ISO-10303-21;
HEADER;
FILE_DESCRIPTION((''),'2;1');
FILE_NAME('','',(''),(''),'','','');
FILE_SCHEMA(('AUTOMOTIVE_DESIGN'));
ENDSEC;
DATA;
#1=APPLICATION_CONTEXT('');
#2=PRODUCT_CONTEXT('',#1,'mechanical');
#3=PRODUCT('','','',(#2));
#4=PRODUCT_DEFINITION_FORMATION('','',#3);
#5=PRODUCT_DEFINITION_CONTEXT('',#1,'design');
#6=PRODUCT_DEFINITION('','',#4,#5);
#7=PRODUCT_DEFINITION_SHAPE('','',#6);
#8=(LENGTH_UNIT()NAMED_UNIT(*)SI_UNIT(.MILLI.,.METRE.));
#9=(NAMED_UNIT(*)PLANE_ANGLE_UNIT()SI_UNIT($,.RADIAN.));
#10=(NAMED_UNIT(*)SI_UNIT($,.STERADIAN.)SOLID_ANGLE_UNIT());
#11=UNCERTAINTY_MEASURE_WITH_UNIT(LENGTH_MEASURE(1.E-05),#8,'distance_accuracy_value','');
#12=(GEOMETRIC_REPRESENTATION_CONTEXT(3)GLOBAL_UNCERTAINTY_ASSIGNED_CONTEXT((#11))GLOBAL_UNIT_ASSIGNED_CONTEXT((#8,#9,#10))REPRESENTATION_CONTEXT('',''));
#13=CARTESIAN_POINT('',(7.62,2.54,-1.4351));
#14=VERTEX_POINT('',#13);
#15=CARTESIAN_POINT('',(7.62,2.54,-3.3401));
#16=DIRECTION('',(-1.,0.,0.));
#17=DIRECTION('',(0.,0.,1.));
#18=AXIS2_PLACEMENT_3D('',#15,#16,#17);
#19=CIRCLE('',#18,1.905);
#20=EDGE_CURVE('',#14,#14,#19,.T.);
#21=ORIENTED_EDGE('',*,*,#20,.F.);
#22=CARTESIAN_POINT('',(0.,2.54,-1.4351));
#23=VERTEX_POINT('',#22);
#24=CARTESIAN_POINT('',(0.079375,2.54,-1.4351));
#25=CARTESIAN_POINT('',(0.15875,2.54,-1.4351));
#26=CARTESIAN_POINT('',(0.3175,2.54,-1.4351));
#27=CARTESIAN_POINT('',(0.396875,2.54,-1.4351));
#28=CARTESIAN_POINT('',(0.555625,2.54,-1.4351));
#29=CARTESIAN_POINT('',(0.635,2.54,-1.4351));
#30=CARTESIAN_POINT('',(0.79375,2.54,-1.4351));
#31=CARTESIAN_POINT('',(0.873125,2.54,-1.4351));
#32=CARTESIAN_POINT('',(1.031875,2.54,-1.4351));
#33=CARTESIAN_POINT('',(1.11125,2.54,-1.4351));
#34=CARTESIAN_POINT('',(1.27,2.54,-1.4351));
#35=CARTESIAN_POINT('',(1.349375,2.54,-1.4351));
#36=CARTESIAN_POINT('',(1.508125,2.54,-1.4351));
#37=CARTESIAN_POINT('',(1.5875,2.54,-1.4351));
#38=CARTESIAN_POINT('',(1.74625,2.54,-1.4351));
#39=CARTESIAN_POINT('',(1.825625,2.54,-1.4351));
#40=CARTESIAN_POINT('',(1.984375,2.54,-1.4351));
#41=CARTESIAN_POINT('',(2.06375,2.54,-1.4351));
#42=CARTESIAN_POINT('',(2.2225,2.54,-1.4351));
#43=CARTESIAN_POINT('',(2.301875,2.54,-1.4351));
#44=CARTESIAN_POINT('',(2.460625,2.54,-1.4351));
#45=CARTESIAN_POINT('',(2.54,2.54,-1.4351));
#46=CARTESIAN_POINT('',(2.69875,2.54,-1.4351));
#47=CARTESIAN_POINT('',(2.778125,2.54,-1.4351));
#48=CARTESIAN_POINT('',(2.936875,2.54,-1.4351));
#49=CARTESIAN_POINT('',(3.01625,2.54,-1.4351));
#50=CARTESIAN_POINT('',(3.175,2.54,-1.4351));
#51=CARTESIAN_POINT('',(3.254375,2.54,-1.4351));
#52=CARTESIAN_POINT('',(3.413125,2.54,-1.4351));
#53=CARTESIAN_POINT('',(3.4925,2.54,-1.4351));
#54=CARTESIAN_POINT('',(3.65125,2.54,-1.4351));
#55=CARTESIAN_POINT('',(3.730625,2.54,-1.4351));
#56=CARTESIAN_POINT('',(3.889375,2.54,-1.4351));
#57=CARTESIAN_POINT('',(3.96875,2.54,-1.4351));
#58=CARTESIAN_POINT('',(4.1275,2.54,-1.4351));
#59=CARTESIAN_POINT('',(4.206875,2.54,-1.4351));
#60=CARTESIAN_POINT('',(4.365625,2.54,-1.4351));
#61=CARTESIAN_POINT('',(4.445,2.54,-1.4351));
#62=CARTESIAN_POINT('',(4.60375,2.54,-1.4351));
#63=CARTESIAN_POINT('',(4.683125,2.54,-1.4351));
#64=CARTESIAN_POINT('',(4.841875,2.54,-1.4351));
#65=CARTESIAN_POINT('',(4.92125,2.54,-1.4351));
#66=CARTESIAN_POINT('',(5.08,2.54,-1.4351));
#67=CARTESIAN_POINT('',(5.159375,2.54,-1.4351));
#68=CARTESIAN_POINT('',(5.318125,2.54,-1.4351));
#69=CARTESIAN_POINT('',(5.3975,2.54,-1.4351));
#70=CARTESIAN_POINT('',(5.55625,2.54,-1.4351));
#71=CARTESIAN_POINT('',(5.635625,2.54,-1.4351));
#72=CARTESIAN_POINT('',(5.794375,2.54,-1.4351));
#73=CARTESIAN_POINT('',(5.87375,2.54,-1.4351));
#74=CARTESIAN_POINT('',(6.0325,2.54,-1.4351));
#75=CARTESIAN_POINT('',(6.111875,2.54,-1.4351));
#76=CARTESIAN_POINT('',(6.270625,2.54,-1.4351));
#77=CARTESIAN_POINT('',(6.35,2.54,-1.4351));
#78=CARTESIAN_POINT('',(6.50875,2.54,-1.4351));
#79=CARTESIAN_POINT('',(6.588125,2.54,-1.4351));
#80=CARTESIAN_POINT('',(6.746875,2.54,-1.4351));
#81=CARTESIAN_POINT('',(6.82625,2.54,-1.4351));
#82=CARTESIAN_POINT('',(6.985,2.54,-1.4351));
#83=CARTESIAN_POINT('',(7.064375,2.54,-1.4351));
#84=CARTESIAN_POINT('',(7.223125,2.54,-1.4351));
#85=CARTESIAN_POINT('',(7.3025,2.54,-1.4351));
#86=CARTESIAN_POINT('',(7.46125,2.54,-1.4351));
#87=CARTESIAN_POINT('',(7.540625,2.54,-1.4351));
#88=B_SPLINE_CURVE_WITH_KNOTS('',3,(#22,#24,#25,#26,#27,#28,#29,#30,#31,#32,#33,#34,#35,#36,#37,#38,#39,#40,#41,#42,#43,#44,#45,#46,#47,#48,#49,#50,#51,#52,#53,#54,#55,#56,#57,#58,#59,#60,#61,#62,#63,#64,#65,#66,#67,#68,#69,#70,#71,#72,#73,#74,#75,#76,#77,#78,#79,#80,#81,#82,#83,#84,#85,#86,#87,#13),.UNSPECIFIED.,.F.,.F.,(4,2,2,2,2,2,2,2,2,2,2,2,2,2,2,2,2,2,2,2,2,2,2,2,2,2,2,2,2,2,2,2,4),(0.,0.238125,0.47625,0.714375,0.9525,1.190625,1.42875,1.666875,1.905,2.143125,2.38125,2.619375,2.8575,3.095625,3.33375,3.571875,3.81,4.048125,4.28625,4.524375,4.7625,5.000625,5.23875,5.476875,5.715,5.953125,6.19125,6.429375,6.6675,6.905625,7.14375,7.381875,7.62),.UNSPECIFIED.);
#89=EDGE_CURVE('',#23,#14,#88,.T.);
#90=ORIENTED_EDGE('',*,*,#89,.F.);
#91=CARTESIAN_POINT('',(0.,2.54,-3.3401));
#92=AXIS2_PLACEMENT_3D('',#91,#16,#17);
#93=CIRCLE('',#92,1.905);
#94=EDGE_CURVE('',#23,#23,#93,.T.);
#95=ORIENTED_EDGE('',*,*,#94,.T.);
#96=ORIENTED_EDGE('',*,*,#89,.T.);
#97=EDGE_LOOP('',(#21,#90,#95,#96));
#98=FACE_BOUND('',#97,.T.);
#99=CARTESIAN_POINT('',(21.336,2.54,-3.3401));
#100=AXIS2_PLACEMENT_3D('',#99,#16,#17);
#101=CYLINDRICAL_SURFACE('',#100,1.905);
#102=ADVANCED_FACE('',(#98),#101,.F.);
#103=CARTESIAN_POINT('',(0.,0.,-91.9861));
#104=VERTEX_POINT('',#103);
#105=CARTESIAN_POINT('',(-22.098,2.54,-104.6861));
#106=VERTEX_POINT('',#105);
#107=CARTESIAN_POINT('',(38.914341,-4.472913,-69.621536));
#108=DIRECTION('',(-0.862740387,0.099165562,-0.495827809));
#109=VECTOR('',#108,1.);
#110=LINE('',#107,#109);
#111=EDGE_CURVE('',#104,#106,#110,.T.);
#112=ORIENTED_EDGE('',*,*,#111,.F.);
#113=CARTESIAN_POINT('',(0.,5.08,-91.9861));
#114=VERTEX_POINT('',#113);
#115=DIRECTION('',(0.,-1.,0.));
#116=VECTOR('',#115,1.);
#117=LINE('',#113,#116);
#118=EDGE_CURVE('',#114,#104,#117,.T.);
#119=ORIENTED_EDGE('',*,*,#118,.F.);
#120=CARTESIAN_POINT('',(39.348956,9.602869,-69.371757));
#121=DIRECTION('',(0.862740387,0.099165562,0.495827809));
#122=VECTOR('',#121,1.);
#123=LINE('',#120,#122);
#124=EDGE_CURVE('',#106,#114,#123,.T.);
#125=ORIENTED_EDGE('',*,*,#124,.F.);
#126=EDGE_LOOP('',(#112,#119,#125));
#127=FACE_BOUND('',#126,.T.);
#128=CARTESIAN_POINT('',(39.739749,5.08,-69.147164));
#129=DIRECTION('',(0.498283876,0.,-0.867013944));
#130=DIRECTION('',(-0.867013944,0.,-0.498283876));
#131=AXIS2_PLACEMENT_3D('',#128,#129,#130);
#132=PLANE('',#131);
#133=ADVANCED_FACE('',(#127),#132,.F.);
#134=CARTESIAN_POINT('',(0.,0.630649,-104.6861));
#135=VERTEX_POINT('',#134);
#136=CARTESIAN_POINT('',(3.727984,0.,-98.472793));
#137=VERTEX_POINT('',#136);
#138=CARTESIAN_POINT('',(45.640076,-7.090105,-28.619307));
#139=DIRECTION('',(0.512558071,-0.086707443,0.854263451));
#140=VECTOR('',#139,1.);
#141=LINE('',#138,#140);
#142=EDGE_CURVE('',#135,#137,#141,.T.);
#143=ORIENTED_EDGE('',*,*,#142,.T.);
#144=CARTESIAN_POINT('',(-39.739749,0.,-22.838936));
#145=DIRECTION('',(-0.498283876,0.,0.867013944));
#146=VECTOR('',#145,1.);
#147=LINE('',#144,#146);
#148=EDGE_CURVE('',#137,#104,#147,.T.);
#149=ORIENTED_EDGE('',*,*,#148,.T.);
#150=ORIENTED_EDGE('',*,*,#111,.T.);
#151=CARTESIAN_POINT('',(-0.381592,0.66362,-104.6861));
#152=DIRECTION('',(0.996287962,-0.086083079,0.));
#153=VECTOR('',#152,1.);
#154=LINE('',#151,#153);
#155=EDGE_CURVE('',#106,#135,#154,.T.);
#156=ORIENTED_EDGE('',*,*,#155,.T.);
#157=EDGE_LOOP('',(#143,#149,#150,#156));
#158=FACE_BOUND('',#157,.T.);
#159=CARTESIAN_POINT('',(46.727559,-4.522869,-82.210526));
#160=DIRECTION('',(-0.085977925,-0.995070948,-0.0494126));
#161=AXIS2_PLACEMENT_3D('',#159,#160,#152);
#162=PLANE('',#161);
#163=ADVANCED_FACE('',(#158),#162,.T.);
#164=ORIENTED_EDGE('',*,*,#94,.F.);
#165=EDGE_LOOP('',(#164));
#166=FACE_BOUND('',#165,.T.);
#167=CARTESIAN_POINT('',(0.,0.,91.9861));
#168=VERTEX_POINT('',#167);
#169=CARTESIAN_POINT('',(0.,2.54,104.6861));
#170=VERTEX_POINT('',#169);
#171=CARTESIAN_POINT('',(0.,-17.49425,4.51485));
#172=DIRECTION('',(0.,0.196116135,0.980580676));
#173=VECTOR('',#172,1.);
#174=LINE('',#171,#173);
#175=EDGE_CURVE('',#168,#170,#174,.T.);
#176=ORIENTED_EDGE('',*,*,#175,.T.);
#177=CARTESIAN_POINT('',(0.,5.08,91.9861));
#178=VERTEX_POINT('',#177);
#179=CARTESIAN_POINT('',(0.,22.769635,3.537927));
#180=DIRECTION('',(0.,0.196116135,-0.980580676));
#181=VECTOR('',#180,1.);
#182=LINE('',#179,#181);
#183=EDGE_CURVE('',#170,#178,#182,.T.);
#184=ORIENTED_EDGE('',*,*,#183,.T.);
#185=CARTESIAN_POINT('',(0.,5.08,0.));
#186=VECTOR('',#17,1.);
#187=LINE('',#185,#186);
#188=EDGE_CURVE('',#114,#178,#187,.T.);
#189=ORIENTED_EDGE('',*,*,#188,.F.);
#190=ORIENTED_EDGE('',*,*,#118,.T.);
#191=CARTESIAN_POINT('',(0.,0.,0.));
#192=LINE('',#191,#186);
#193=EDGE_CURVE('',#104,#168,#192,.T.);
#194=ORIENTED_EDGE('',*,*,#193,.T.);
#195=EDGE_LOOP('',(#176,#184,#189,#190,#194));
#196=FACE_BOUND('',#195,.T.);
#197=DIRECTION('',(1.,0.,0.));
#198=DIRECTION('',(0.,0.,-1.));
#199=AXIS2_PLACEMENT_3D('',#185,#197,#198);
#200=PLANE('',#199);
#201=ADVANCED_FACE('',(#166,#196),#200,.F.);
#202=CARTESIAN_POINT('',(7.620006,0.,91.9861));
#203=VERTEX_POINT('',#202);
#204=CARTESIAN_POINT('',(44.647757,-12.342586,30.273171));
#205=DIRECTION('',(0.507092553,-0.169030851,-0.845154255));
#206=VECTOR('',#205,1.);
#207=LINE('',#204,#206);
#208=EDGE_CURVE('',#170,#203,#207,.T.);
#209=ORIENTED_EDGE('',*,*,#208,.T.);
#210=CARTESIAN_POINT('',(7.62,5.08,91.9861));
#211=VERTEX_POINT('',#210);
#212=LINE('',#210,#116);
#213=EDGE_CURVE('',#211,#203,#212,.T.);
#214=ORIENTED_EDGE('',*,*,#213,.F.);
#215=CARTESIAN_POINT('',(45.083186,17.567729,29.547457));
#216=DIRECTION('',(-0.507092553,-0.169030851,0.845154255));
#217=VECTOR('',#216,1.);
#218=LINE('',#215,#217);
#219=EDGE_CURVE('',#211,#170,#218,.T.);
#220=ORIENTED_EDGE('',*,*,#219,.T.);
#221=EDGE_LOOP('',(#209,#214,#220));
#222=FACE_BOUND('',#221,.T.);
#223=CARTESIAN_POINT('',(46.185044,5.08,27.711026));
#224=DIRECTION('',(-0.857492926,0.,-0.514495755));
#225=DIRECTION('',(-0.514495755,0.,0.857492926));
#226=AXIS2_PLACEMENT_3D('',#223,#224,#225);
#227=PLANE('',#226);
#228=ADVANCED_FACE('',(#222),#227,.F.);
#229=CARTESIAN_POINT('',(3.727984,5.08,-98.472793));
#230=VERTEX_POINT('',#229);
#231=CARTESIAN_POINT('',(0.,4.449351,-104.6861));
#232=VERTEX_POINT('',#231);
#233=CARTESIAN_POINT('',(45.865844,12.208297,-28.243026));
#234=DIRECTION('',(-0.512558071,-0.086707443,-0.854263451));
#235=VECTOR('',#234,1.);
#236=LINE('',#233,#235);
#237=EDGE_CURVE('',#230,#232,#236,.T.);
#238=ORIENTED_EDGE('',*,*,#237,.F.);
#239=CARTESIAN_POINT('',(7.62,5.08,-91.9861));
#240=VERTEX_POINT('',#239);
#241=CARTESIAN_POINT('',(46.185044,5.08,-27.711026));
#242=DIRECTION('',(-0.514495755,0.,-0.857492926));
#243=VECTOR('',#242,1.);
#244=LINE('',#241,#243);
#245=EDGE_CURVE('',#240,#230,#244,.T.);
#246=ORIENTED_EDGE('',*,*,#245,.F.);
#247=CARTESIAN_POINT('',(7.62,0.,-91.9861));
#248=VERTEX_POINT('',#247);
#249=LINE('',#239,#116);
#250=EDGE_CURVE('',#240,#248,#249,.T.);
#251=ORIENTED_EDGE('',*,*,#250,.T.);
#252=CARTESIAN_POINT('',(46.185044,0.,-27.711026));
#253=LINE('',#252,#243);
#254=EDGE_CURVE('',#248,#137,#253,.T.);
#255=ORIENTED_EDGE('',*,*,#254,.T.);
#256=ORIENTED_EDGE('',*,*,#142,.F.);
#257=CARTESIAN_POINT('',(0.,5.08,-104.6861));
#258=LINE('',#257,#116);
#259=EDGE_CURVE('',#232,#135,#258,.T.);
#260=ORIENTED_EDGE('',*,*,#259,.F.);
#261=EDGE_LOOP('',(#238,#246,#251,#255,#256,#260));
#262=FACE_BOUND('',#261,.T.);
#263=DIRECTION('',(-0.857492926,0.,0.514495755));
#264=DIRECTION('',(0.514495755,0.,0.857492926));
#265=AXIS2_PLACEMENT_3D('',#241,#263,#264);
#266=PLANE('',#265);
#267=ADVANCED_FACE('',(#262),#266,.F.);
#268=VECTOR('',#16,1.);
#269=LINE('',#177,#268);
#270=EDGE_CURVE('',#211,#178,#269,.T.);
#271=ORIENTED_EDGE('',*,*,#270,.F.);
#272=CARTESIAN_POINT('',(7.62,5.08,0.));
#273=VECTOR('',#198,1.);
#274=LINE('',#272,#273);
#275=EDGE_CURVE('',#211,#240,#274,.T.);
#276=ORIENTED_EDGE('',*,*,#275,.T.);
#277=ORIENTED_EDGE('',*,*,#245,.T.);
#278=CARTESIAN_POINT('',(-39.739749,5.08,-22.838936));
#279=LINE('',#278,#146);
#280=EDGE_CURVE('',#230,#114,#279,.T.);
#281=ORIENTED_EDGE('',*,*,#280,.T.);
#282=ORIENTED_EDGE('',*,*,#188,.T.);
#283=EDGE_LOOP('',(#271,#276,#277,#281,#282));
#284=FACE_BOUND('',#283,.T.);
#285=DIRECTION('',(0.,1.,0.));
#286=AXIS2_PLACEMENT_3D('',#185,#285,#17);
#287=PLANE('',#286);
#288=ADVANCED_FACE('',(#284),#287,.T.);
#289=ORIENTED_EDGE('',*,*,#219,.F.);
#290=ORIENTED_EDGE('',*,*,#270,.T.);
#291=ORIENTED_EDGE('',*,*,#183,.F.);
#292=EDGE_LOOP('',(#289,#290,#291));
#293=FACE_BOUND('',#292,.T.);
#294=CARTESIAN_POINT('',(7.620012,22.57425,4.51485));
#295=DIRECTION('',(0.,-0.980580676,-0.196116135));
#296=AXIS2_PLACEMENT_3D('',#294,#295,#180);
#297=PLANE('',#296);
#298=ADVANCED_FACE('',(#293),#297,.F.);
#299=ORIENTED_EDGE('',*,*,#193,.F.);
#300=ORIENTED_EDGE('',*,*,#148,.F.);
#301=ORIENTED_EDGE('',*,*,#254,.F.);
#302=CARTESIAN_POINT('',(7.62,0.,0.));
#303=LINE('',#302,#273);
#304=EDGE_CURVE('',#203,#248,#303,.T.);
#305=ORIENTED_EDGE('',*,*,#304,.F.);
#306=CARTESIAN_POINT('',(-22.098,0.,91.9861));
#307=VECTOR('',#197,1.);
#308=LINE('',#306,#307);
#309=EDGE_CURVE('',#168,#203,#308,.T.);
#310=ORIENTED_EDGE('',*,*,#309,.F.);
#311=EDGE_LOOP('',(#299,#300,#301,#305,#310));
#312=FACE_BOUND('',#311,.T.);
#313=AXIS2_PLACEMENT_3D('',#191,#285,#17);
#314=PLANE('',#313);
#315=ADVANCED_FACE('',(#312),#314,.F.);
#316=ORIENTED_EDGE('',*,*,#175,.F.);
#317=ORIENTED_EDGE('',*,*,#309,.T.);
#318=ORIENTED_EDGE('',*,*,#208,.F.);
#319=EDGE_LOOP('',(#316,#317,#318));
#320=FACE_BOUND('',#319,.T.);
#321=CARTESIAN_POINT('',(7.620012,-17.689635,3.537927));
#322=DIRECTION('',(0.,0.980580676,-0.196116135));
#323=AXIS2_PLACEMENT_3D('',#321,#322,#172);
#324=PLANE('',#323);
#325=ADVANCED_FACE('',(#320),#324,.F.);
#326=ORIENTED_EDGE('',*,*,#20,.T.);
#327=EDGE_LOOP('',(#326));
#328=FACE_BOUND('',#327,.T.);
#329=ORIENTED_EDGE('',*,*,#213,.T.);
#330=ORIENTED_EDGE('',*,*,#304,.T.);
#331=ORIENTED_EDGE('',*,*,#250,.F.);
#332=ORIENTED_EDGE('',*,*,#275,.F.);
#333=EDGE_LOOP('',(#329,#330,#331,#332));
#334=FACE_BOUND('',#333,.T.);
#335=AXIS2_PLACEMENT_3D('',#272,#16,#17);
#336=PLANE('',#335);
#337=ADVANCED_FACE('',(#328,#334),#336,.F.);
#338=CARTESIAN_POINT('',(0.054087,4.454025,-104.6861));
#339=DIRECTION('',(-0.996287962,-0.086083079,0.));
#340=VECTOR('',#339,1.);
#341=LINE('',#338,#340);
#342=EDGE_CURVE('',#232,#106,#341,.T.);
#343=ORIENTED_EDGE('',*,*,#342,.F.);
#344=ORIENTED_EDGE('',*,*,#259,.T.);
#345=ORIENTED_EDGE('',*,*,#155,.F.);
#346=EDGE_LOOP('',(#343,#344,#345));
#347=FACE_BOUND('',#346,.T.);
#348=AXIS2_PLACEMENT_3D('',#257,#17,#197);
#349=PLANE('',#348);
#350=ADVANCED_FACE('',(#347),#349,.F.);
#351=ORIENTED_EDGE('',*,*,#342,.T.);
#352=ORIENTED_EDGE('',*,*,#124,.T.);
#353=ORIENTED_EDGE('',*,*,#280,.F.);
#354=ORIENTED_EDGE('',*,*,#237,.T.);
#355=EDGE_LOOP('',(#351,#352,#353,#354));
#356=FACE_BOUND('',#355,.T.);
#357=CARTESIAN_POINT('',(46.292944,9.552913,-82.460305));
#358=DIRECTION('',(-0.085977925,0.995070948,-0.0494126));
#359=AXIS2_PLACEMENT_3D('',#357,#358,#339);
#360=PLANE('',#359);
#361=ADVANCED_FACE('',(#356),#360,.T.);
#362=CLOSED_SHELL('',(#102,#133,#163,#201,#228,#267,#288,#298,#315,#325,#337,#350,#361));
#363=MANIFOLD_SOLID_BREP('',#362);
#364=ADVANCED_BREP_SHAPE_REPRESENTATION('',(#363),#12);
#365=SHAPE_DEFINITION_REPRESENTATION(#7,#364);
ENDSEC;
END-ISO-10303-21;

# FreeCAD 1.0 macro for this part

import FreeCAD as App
import Part
import Sketcher

V = App.Vector
Q = App.Units.Quantity

doc = App.newDocument("Part")
body = doc.addObject("PartDesign::Body", "Body")

sketch1 = doc.addObject("Sketcher::SketchObject", "Sketch")
body.addObject(sketch1)
sketch1.AttachmentSupport = (doc.XZ_Plane, [""])
sketch1.MapMode = "FlatFace"
sketch1.addGeometry([
    Part.LineSegment(V(8, 92, 0), V(8, -92, 0)),
    Part.LineSegment(V(8, -92, 0), V(0, -105, 0)),
    Part.LineSegment(V(0, -105, 0), V(-22, -105, 0)),
    Part.LineSegment(V(-22, -105, 0), V(0, -92, 0)),
    Part.LineSegment(V(0, -92, 0), V(0, 105, 0)),
    Part.LineSegment(V(0, 105, 0), V(8, 92, 0)),
], False)
sketch1.addConstraint([
    Sketcher.Constraint("Coincident", 0, 2, 1, 1),
    Sketcher.Constraint("Coincident", 1, 2, 2, 1),
    Sketcher.Constraint("Coincident", 2, 2, 3, 1),
    Sketcher.Constraint("Coincident", 3, 2, 4, 1),
    Sketcher.Constraint("Coincident", 4, 2, 5, 1),
    Sketcher.Constraint("Coincident", 5, 2, 0, 1),
    Sketcher.Constraint("Vertical", 0),
    Sketcher.Constraint("Horizontal", 2),
    Sketcher.Constraint("Vertical", 4),
    Sketcher.Constraint("Symmetric", 1, 2, 4, 2, -1, 1),
    Sketcher.Constraint("PointOnObject", 1, 2, -2),
    Sketcher.Constraint("Horizontal", 0, 2, 3, 2),
    Sketcher.Constraint("Equal", 1, 5),
    Sketcher.Constraint("DistanceX", 2, 2, 2, 1, Q("0.87 in")),
    Sketcher.Constraint("DistanceX", -1, 1, 0, 2, Q("0.3 in")),
    Sketcher.Constraint("DistanceY", 1, 2, 0, 2, Q("0.5 in")),
    Sketcher.Constraint("DistanceY", 0, 2, 0, 1, Q("7.243 in")),
])
pad1 = doc.addObject("PartDesign::Pad", "Pad")
body.addObject(pad1)
pad1.Profile = sketch1
pad1.Length = Q("0.2 in")
pad1.Reversed = True

sketch2 = doc.addObject("Sketcher::SketchObject", "Sketch001")
body.addObject(sketch2)
sketch2.AttachmentSupport = (doc.YZ_Plane, [""])
sketch2.MapMode = "FlatFace"
sketch2.AttachmentOffset = App.Placement(V(0, 0, 0.3 * 25.4), App.Rotation())
sketch2.addGeometry([
    Part.LineSegment(V(5.1, 92, 0), V(5.1, 104.7, 0)),
    Part.LineSegment(V(5.1, 104.7, 0), V(2.5, 104.7, 0)),
    Part.LineSegment(V(2.5, 104.7, 0), V(5.1, 92, 0)),
    Part.LineSegment(V(2.5, 104.7, 0), V(0, 104.7, 0)),
    Part.LineSegment(V(0, 104.7, 0), V(0, 92, 0)),
    Part.LineSegment(V(0, 92, 0), V(2.5, 104.7, 0)),
], False)
sketch2.addConstraint([
    Sketcher.Constraint("Coincident", 0, 2, 1, 1),
    Sketcher.Constraint("Coincident", 1, 2, 2, 1),
    Sketcher.Constraint("Coincident", 2, 2, 0, 1),
    Sketcher.Constraint("Coincident", 3, 2, 4, 1),
    Sketcher.Constraint("Coincident", 4, 2, 5, 1),
    Sketcher.Constraint("Coincident", 5, 2, 3, 1),
    Sketcher.Constraint("Vertical", 0),
    Sketcher.Constraint("Horizontal", 1),
    Sketcher.Constraint("Horizontal", 3),
    Sketcher.Constraint("Vertical", 4),
    Sketcher.Constraint("Coincident", 5, 2, 1, 2),
    Sketcher.Constraint("PointOnObject", 3, 2, -2),
    Sketcher.Constraint("Horizontal", 2, 2, 4, 2),
    Sketcher.Constraint("Equal", 1, 3),
    Sketcher.Constraint("DistanceX", 1, 2, 1, 1, Q("0.1 in")),
    Sketcher.Constraint("DistanceY", 0, 1, 0, 2, Q("0.5 in")),
    Sketcher.Constraint("DistanceY", -1, 1, 0, 2, Q("4.1215 in")),
])
pocket1 = doc.addObject("PartDesign::Pocket", "Pocket")
body.addObject(pocket1)
pocket1.Profile = sketch2
pocket1.Type = "ThroughAll"
pocket1.Midplane = True

sketch3 = doc.addObject("Sketcher::SketchObject", "Sketch002")
body.addObject(sketch3)
sketch3.Placement = App.Placement(V(39.739749, 0, -69.147164), App.Rotation(V(0.867013944, 0, 0.498283876), V(0, 1, 0), V(-0.498283876, 0, 0.867013944), "ZXY"))
sketch3.addGeometry([
    Part.LineSegment(V(-71.3, 2.5, 0), V(-45.8, 5.1, 0)),
    Part.LineSegment(V(-45.8, 5.1, 0), V(-71.3, 5.1, 0)),
    Part.LineSegment(V(-71.3, 5.1, 0), V(-71.3, 2.5, 0)),
    Part.LineSegment(V(-45.8, 0, 0), V(-71.3, 2.5, 0)),
    Part.LineSegment(V(-71.3, 2.5, 0), V(-71.3, 0, 0)),
    Part.LineSegment(V(-71.3, 0, 0), V(-45.8, 0, 0)),
], False)
sketch3.addConstraint([
    Sketcher.Constraint("Coincident", 0, 2, 1, 1),
    Sketcher.Constraint("Coincident", 1, 2, 2, 1),
    Sketcher.Constraint("Coincident", 2, 2, 0, 1),
    Sketcher.Constraint("Coincident", 3, 2, 4, 1),
    Sketcher.Constraint("Coincident", 4, 2, 5, 1),
    Sketcher.Constraint("Coincident", 5, 2, 3, 1),
    Sketcher.Constraint("Horizontal", 1),
    Sketcher.Constraint("Vertical", 2),
    Sketcher.Constraint("Vertical", 4),
    Sketcher.Constraint("Horizontal", 5),
    Sketcher.Constraint("Coincident", 3, 2, 2, 2),
    Sketcher.Constraint("PointOnObject", 4, 2, -1),
    Sketcher.Constraint("Vertical", 0, 2, 5, 2),
    Sketcher.Constraint("Equal", 2, 4),
    Sketcher.Constraint("DistanceY", 2, 2, 2, 1, Q("0.1 in")),
    Sketcher.Constraint("DistanceX", 1, 2, 1, 1, 25.487479),
    Sketcher.Constraint("DistanceX", 0, 2, -1, 1, 45.83519),
])
pocket2 = doc.addObject("PartDesign::Pocket", "Pocket001")
body.addObject(pocket2)
pocket2.Profile = sketch3
pocket2.Type = "ThroughAll"
pocket2.Midplane = True

sketch4 = doc.addObject("Sketcher::SketchObject", "Sketch003")
body.addObject(sketch4)
sketch4.AttachmentSupport = (doc.YZ_Plane, [""])
sketch4.MapMode = "FlatFace"
sketch4.addGeometry(Part.Circle(V(2.5, -3.3, 0), V(0, 0, 1), 1.9), False)
sketch4.addConstraint([
    Sketcher.Constraint("Diameter", 0, Q("0.15 in")),
    Sketcher.Constraint("DistanceX", -1, 1, 0, 3, Q("0.1 in")),
    Sketcher.Constraint("DistanceY", 0, 3, -1, 1, Q("0.1315 in")),
])
pocket3 = doc.addObject("PartDesign::Pocket", "Pocket002")
body.addObject(pocket3)
pocket3.Profile = sketch4
pocket3.Length = Q("0.84 in")
pocket3.Reversed = True

doc.recompute()
